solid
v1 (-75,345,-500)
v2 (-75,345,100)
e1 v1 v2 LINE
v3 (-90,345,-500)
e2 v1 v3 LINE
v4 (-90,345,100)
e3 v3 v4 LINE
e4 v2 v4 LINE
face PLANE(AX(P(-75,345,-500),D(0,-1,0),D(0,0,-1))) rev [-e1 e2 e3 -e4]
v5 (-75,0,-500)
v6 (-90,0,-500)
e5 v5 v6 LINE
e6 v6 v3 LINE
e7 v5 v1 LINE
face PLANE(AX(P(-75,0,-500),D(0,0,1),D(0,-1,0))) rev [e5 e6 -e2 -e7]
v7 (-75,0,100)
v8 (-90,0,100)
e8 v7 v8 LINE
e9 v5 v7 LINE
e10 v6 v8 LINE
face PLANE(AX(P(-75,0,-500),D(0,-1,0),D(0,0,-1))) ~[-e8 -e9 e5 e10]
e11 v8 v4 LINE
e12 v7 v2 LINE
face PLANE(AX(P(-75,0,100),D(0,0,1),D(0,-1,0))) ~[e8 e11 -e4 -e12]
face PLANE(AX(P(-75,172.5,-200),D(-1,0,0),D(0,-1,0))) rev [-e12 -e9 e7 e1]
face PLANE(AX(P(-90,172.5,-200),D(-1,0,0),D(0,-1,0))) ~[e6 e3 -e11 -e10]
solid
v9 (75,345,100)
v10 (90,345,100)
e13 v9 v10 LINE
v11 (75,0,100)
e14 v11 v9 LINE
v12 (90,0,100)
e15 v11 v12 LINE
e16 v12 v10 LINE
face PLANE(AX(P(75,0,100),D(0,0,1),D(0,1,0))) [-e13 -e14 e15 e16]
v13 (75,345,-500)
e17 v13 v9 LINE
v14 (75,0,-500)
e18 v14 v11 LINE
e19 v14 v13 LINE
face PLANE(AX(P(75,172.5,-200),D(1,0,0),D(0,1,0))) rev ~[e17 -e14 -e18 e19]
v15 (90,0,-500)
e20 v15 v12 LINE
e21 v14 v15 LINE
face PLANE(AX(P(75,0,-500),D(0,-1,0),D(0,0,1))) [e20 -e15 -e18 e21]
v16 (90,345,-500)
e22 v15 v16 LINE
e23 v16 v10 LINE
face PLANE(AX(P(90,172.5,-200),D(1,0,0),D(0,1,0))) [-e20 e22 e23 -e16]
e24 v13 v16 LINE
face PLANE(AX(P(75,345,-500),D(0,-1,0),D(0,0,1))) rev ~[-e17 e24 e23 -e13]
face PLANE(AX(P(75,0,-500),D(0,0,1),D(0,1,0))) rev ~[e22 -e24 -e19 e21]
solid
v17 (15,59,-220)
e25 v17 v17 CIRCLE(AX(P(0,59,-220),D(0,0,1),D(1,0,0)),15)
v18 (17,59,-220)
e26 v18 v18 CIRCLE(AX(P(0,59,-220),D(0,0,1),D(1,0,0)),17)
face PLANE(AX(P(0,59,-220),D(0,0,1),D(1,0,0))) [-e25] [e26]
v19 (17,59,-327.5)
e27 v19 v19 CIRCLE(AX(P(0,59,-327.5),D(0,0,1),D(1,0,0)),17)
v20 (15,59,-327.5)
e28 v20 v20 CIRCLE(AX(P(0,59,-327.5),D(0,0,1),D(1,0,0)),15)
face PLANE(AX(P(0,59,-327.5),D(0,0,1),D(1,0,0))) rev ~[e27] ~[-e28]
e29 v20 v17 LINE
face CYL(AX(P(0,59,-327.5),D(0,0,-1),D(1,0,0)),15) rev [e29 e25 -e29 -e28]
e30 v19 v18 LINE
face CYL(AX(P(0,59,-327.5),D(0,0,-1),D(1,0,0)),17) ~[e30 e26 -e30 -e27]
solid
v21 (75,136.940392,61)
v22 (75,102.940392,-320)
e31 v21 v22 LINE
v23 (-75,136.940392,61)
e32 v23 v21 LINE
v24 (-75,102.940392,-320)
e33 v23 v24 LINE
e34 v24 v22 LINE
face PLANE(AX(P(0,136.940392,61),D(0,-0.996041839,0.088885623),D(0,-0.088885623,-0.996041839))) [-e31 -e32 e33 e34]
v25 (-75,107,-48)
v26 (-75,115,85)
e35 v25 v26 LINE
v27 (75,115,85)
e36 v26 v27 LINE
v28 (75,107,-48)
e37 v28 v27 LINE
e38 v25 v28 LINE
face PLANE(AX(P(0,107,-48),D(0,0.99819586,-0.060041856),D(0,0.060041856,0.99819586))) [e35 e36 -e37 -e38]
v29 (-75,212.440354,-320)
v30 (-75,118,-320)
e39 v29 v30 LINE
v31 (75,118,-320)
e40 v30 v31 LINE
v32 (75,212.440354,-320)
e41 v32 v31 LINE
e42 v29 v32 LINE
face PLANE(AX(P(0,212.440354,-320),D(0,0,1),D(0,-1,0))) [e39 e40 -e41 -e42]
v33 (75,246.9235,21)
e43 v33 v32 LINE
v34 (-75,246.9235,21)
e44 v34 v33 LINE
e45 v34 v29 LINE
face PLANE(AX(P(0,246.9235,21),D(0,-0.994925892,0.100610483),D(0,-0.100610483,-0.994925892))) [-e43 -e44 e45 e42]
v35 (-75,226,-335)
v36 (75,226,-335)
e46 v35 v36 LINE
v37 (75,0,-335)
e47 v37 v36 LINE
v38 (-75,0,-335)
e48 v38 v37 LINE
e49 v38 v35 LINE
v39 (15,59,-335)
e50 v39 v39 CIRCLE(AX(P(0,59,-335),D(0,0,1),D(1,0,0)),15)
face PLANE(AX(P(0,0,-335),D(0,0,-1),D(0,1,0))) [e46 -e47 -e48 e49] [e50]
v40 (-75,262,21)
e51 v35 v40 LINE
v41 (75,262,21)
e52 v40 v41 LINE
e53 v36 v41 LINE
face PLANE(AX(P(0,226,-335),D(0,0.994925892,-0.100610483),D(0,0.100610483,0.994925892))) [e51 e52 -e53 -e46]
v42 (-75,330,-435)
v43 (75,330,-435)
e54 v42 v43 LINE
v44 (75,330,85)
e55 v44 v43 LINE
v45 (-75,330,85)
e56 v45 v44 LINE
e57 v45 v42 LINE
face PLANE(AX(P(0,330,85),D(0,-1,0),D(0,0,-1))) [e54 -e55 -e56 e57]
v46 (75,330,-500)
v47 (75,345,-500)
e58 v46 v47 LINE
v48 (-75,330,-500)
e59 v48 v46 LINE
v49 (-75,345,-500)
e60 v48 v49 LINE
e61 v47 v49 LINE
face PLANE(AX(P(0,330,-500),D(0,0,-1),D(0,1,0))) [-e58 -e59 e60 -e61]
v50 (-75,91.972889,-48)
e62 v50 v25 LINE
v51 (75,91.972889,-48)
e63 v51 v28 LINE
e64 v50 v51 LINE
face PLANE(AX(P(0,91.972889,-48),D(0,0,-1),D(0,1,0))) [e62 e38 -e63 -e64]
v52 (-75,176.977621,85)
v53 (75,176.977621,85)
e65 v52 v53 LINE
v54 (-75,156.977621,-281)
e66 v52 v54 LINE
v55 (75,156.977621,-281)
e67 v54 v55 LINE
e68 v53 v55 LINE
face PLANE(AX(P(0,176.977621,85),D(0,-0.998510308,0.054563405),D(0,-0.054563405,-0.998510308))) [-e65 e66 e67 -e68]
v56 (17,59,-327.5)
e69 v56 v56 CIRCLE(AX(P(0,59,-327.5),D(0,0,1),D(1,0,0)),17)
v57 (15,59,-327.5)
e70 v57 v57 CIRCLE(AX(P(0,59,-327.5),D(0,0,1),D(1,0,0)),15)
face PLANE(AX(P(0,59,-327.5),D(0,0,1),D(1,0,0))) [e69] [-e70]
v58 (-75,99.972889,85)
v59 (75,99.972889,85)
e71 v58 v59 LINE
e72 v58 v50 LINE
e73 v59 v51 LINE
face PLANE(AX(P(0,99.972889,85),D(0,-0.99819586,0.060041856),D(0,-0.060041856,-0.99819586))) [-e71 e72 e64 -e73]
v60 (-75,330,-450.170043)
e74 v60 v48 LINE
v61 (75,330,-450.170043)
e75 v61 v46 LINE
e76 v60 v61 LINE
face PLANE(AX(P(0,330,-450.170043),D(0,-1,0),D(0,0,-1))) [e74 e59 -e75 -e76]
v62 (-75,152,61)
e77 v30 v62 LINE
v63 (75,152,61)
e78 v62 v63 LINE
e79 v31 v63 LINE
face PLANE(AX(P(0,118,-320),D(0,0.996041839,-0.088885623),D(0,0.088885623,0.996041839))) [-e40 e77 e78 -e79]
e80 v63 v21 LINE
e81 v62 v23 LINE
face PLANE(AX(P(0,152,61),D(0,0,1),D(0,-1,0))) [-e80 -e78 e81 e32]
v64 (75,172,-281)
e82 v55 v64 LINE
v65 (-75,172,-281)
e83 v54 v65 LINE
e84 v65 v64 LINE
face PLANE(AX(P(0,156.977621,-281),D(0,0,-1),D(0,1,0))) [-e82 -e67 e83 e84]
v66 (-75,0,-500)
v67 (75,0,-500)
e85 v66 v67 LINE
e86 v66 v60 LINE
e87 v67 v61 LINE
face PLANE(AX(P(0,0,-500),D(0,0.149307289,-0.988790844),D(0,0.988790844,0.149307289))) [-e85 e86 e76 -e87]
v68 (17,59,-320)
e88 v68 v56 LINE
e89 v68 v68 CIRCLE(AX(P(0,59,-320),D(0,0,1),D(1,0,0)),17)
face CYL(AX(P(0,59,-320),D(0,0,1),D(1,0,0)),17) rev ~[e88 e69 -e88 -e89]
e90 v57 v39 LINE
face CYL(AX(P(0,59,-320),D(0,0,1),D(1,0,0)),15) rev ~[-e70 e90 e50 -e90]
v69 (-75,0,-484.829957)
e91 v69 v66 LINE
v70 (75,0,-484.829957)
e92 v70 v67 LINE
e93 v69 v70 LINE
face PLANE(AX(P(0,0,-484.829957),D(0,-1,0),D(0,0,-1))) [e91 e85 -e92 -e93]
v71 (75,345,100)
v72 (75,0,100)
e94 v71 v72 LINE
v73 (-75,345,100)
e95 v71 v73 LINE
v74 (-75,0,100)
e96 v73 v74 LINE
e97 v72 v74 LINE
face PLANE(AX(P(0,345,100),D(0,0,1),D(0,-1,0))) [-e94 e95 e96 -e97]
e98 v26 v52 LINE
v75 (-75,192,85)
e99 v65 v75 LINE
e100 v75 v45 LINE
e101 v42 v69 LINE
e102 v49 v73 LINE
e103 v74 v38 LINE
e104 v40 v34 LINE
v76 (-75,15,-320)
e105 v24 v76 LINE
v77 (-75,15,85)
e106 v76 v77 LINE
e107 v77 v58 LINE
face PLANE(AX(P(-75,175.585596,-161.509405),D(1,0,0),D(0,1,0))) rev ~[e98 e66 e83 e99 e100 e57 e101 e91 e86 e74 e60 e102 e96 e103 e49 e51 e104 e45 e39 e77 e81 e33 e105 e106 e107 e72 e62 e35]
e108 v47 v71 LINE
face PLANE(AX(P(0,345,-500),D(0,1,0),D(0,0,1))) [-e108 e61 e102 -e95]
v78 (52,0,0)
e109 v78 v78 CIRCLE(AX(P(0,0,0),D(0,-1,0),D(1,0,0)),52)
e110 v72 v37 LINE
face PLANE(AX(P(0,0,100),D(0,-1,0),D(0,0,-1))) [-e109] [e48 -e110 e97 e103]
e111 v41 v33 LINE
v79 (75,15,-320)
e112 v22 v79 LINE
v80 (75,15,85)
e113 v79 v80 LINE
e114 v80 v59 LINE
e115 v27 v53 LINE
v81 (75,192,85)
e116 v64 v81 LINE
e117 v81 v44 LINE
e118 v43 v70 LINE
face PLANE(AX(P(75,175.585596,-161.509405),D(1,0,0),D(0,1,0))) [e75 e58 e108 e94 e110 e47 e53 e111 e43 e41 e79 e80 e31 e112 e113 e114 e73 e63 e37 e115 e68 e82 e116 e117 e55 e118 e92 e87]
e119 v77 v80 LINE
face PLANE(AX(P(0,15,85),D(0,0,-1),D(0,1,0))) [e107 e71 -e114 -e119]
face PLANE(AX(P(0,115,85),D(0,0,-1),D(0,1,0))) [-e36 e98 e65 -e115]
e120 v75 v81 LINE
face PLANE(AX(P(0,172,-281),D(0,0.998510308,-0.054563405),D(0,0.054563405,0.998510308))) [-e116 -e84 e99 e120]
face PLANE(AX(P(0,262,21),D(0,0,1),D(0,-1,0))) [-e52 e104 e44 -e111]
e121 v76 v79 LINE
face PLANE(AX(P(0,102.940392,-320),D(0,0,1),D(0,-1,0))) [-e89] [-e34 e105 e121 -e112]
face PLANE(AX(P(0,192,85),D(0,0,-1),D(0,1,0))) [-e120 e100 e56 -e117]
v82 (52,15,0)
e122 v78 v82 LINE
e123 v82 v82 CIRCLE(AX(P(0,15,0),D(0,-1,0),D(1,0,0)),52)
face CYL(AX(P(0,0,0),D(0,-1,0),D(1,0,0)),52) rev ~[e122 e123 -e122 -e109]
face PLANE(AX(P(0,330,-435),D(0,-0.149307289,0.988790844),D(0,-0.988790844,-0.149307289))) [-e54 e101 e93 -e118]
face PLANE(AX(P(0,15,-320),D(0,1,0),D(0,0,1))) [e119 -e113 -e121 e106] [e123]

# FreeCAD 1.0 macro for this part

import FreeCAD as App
import Part
import Sketcher
from FreeCAD import Vector
Q = App.Units.Quantity

doc = App.newDocument("Part")
body = doc.addObject("PartDesign::Body", "Body")

sketch1 = body.newObject("Sketcher::SketchObject", "Sketch")
sketch1.AttachmentSupport = (doc.getObject("YZ_Plane"), [""])
sketch1.MapMode = "FlatFace"
sketch1.addGeometry(Part.LineSegment(Vector(0, 100, 0), Vector(0, -335, 0)), False)
sketch1.addGeometry(Part.LineSegment(Vector(0, -335, 0), Vector(226, -335, 0)), False)
sketch1.addGeometry(Part.LineSegment(Vector(226, -335, 0), Vector(262, 21, 0)), False)
sketch1.addGeometry(Part.LineSegment(Vector(262, 21, 0), Vector(247, 21, 0)), False)
sketch1.addGeometry(Part.LineSegment(Vector(247, 21, 0), Vector(212, -320, 0)), False)
sketch1.addGeometry(Part.LineSegment(Vector(212, -320, 0), Vector(118, -320, 0)), False)
sketch1.addGeometry(Part.LineSegment(Vector(118, -320, 0), Vector(152, 61, 0)), False)
sketch1.addGeometry(Part.LineSegment(Vector(152, 61, 0), Vector(137, 61, 0)), False)
sketch1.addGeometry(Part.LineSegment(Vector(137, 61, 0), Vector(103, -320, 0)), False)
sketch1.addGeometry(Part.LineSegment(Vector(103, -320, 0), Vector(15, -320, 0)), False)
sketch1.addGeometry(Part.LineSegment(Vector(15, -320, 0), Vector(15, 85, 0)), False)
sketch1.addGeometry(Part.LineSegment(Vector(15, 85, 0), Vector(100, 85, 0)), False)
sketch1.addGeometry(Part.LineSegment(Vector(100, 85, 0), Vector(92, -48, 0)), False)
sketch1.addGeometry(Part.LineSegment(Vector(92, -48, 0), Vector(107, -48, 0)), False)
sketch1.addGeometry(Part.LineSegment(Vector(107, -48, 0), Vector(115, 85, 0)), False)
sketch1.addGeometry(Part.LineSegment(Vector(115, 85, 0), Vector(177, 85, 0)), False)
sketch1.addGeometry(Part.LineSegment(Vector(177, 85, 0), Vector(157, -281, 0)), False)
sketch1.addGeometry(Part.LineSegment(Vector(157, -281, 0), Vector(172, -281, 0)), False)
sketch1.addGeometry(Part.LineSegment(Vector(172, -281, 0), Vector(192, 85, 0)), False)
sketch1.addGeometry(Part.LineSegment(Vector(192, 85, 0), Vector(330, 85, 0)), False)
sketch1.addGeometry(Part.LineSegment(Vector(330, 85, 0), Vector(330, -435, 0)), False)
sketch1.addGeometry(Part.LineSegment(Vector(330, -435, 0), Vector(0, -485, 0)), False)
sketch1.addGeometry(Part.LineSegment(Vector(0, -485, 0), Vector(0, -500, 0)), False)
sketch1.addGeometry(Part.LineSegment(Vector(0, -500, 0), Vector(330, -450, 0)), False)
sketch1.addGeometry(Part.LineSegment(Vector(330, -450, 0), Vector(330, -500, 0)), False)
sketch1.addGeometry(Part.LineSegment(Vector(330, -500, 0), Vector(345, -500, 0)), False)
sketch1.addGeometry(Part.LineSegment(Vector(345, -500, 0), Vector(345, 100, 0)), False)
sketch1.addGeometry(Part.LineSegment(Vector(345, 100, 0), Vector(0, 100, 0)), False)
sketch1.addConstraint(Sketcher.Constraint("Coincident", 0, 2, 1, 1))
sketch1.addConstraint(Sketcher.Constraint("Coincident", 1, 2, 2, 1))
sketch1.addConstraint(Sketcher.Constraint("Coincident", 2, 2, 3, 1))
sketch1.addConstraint(Sketcher.Constraint("Coincident", 3, 2, 4, 1))
sketch1.addConstraint(Sketcher.Constraint("Coincident", 4, 2, 5, 1))
sketch1.addConstraint(Sketcher.Constraint("Coincident", 5, 2, 6, 1))
sketch1.addConstraint(Sketcher.Constraint("Coincident", 6, 2, 7, 1))
sketch1.addConstraint(Sketcher.Constraint("Coincident", 7, 2, 8, 1))
sketch1.addConstraint(Sketcher.Constraint("Coincident", 8, 2, 9, 1))
sketch1.addConstraint(Sketcher.Constraint("Coincident", 9, 2, 10, 1))
sketch1.addConstraint(Sketcher.Constraint("Coincident", 10, 2, 11, 1))
sketch1.addConstraint(Sketcher.Constraint("Coincident", 11, 2, 12, 1))
sketch1.addConstraint(Sketcher.Constraint("Coincident", 12, 2, 13, 1))
sketch1.addConstraint(Sketcher.Constraint("Coincident", 13, 2, 14, 1))
sketch1.addConstraint(Sketcher.Constraint("Coincident", 14, 2, 15, 1))
sketch1.addConstraint(Sketcher.Constraint("Coincident", 15, 2, 16, 1))
sketch1.addConstraint(Sketcher.Constraint("Coincident", 16, 2, 17, 1))
sketch1.addConstraint(Sketcher.Constraint("Coincident", 17, 2, 18, 1))
sketch1.addConstraint(Sketcher.Constraint("Coincident", 18, 2, 19, 1))
sketch1.addConstraint(Sketcher.Constraint("Coincident", 19, 2, 20, 1))
sketch1.addConstraint(Sketcher.Constraint("Coincident", 20, 2, 21, 1))
sketch1.addConstraint(Sketcher.Constraint("Coincident", 21, 2, 22, 1))
sketch1.addConstraint(Sketcher.Constraint("Coincident", 22, 2, 23, 1))
sketch1.addConstraint(Sketcher.Constraint("Coincident", 23, 2, 24, 1))
sketch1.addConstraint(Sketcher.Constraint("Coincident", 24, 2, 25, 1))
sketch1.addConstraint(Sketcher.Constraint("Coincident", 25, 2, 26, 1))
sketch1.addConstraint(Sketcher.Constraint("Coincident", 26, 2, 27, 1))
sketch1.addConstraint(Sketcher.Constraint("Coincident", 27, 2, 0, 1))
sketch1.addConstraint(Sketcher.Constraint("Vertical", 0))
sketch1.addConstraint(Sketcher.Constraint("Horizontal", 1))
sketch1.addConstraint(Sketcher.Constraint("Horizontal", 3))
sketch1.addConstraint(Sketcher.Constraint("Horizontal", 5))
sketch1.addConstraint(Sketcher.Constraint("Horizontal", 7))
sketch1.addConstraint(Sketcher.Constraint("Horizontal", 9))
sketch1.addConstraint(Sketcher.Constraint("Vertical", 10))
sketch1.addConstraint(Sketcher.Constraint("Horizontal", 11))
sketch1.addConstraint(Sketcher.Constraint("Horizontal", 13))
sketch1.addConstraint(Sketcher.Constraint("Horizontal", 15))
sketch1.addConstraint(Sketcher.Constraint("Horizontal", 17))
sketch1.addConstraint(Sketcher.Constraint("Horizontal", 19))
sketch1.addConstraint(Sketcher.Constraint("Vertical", 20))
sketch1.addConstraint(Sketcher.Constraint("Vertical", 22))
sketch1.addConstraint(Sketcher.Constraint("Vertical", 24))
sketch1.addConstraint(Sketcher.Constraint("Horizontal", 25))
sketch1.addConstraint(Sketcher.Constraint("Vertical", 26))
sketch1.addConstraint(Sketcher.Constraint("Horizontal", 27))
sketch1.addConstraint(Sketcher.Constraint("PointOnObject", 0, 2, -2))
sketch1.addConstraint(Sketcher.Constraint("PointOnObject", 21, 2, -2))
sketch1.addConstraint(Sketcher.Constraint("Parallel", 2, 4))
sketch1.addConstraint(Sketcher.Constraint("Parallel", 6, 8))
sketch1.addConstraint(Sketcher.Constraint("Parallel", 12, 14))
sketch1.addConstraint(Sketcher.Constraint("Parallel", 16, 18))
sketch1.addConstraint(Sketcher.Constraint("Parallel", 21, 23))
sketch1.addConstraint(Sketcher.Constraint("Horizontal", 5, 2, 8, 2))
sketch1.addConstraint(Sketcher.Constraint("Horizontal", 11, 2, 14, 2))
sketch1.addConstraint(Sketcher.Constraint("Horizontal", 15, 2, 18, 2))
sketch1.addConstraint(Sketcher.Constraint("Horizontal", 22, 2, 24, 2))
sketch1.addConstraint(Sketcher.Constraint("Vertical", 20, 2, 23, 2))
sketch1.addConstraint(Sketcher.Constraint("DistanceX", 1, 1, 1, 2, Q("226 mm")))
sketch1.addConstraint(Sketcher.Constraint("DistanceX", 19, 1, 19, 2, Q("138 mm")))
sketch1.addConstraint(Sketcher.Constraint("DistanceX", 25, 1, 25, 2, Q("15 mm")))
sketch1.addConstraint(Sketcher.Constraint("DistanceX", 27, 2, 27, 1, Q("345 mm")))
sketch1.addConstraint(Sketcher.Constraint("DistanceY", 0, 2, 0, 1, Q("435 mm")))
sketch1.addConstraint(Sketcher.Constraint("DistanceY", 10, 1, 10, 2, Q("405 mm")))
sketch1.addConstraint(Sketcher.Constraint("DistanceY", 20, 2, 20, 1, Q("520 mm")))
sketch1.addConstraint(Sketcher.Constraint("DistanceY", 26, 1, 26, 2, Q("600 mm")))
sketch1.addConstraint(Sketcher.Constraint("DistanceY", 0, 2, -1, 1, Q("335 mm")))
sketch1.addConstraint(Sketcher.Constraint("DistanceX", -1, 1, 2, 2, Q("262 mm")))
sketch1.addConstraint(Sketcher.Constraint("DistanceY", -1, 1, 2, 2, Q("21 mm")))
sketch1.addConstraint(Sketcher.Constraint("DistanceY", 4, 2, -1, 1, Q("320 mm")))
sketch1.addConstraint(Sketcher.Constraint("DistanceX", -1, 1, 5, 2, Q("118 mm")))
sketch1.addConstraint(Sketcher.Constraint("DistanceX", -1, 1, 6, 2, Q("152 mm")))
sketch1.addConstraint(Sketcher.Constraint("DistanceY", -1, 1, 6, 2, Q("61 mm")))
sketch1.addConstraint(Sketcher.Constraint("DistanceX", -1, 1, 9, 2, Q("15 mm")))
sketch1.addConstraint(Sketcher.Constraint("DistanceY", 12, 2, -1, 1, Q("48 mm")))
sketch1.addConstraint(Sketcher.Constraint("DistanceX", -1, 1, 13, 2, Q("107 mm")))
sketch1.addConstraint(Sketcher.Constraint("DistanceX", -1, 1, 14, 2, Q("115 mm")))
sketch1.addConstraint(Sketcher.Constraint("DistanceY", 16, 2, -1, 1, Q("281 mm")))
sketch1.addConstraint(Sketcher.Constraint("DistanceX", -1, 1, 17, 2, Q("172 mm")))
sketch1.addConstraint(Sketcher.Constraint("DistanceX", 3, 2, 3, 1, Q("15.0765 mm")))
sketch1.addConstraint(Sketcher.Constraint("DistanceX", 11, 1, 11, 2, Q("84.972889 mm")))
sketch1.addConstraint(Sketcher.Constraint("DistanceX", 15, 1, 15, 2, Q("61.977621 mm")))
sketch1.addConstraint(Sketcher.Constraint("DistanceX", 7, 2, 7, 1, Q("15.059608 mm")))
sketch1.addConstraint(Sketcher.Constraint("DistanceY", 22, 2, 22, 1, Q("15.170043 mm")))
pad1 = body.newObject("PartDesign::Pad", "Pad")
pad1.Profile = sketch1
pad1.Length = 150
pad1.Midplane = True

sketch2 = body.newObject("Sketcher::SketchObject", "Sketch001")
sketch2.AttachmentSupport = (doc.getObject("XZ_Plane"), [""])
sketch2.MapMode = "FlatFace"
sketch2.addGeometry(Part.Circle(Vector(0, 0, 0), Vector(0, 0, 1), 52), False)
sketch2.addConstraint(Sketcher.Constraint("Coincident", 0, 3, -1, 1))
sketch2.addConstraint(Sketcher.Constraint("Diameter", 0, Q("104 mm")))
pocket1 = body.newObject("PartDesign::Pocket", "Pocket")
pocket1.Profile = sketch2
pocket1.Length = 15

sketch3 = body.newObject("Sketcher::SketchObject", "Sketch002")
sketch3.AttachmentSupport = (doc.getObject("XY_Plane"), [""])
sketch3.MapMode = "FlatFace"
sketch3.AttachmentOffset = App.Placement(Vector(0, 0, -320), App.Rotation())
sketch3.addGeometry(Part.Circle(Vector(0, 59, 0), Vector(0, 0, 1), 15), False)
sketch3.addConstraint(Sketcher.Constraint("PointOnObject", 0, 3, -2))
sketch3.addConstraint(Sketcher.Constraint("Diameter", 0, Q("30 mm")))
sketch3.addConstraint(Sketcher.Constraint("DistanceY", -1, 1, 0, 3, Q("59 mm")))
pocket2 = body.newObject("PartDesign::Pocket", "Pocket001")
pocket2.Profile = sketch3
pocket2.Length = 15

sketch4 = body.newObject("Sketcher::SketchObject", "Sketch003")
sketch4.AttachmentSupport = (doc.getObject("XY_Plane"), [""])
sketch4.MapMode = "FlatFace"
sketch4.AttachmentOffset = App.Placement(Vector(0, 0, -320), App.Rotation())
sketch4.addGeometry(Part.Circle(Vector(0, 59, 0), Vector(0, 0, 1), 17), False)
sketch4.addGeometry(Part.Circle(Vector(0, 59, 0), Vector(0, 0, 1), 15), False)
sketch4.addConstraint(Sketcher.Constraint("Coincident", 1, 3, 0, 3))
sketch4.addConstraint(Sketcher.Constraint("PointOnObject", 0, 3, -2))
sketch4.addConstraint(Sketcher.Constraint("Diameter", 0, Q("34 mm")))
sketch4.addConstraint(Sketcher.Constraint("Diameter", 1, Q("30 mm")))
sketch4.addConstraint(Sketcher.Constraint("DistanceY", -1, 1, 0, 3, Q("59 mm")))
pocket3 = body.newObject("PartDesign::Pocket", "Pocket002")
pocket3.Profile = sketch4
pocket3.Length = 7.5
body2 = doc.addObject("PartDesign::Body", "Body001")

sketch5 = body2.newObject("Sketcher::SketchObject", "Sketch004")
sketch5.AttachmentSupport = (doc.getObject("YZ_Plane001"), [""])
sketch5.MapMode = "FlatFace"
sketch5.AttachmentOffset = App.Placement(Vector(0, 0, 75), App.Rotation())
sketch5.addGeometry(Part.LineSegment(Vector(0, 100, 0), Vector(0, -500, 0)), False)
sketch5.addGeometry(Part.LineSegment(Vector(0, -500, 0), Vector(345, -500, 0)), False)
sketch5.addGeometry(Part.LineSegment(Vector(345, -500, 0), Vector(345, 100, 0)), False)
sketch5.addGeometry(Part.LineSegment(Vector(345, 100, 0), Vector(0, 100, 0)), False)
sketch5.addConstraint(Sketcher.Constraint("Coincident", 0, 2, 1, 1))
sketch5.addConstraint(Sketcher.Constraint("Coincident", 1, 2, 2, 1))
sketch5.addConstraint(Sketcher.Constraint("Coincident", 2, 2, 3, 1))
sketch5.addConstraint(Sketcher.Constraint("Coincident", 3, 2, 0, 1))
sketch5.addConstraint(Sketcher.Constraint("Vertical", 0))
sketch5.addConstraint(Sketcher.Constraint("Horizontal", 1))
sketch5.addConstraint(Sketcher.Constraint("Vertical", 2))
sketch5.addConstraint(Sketcher.Constraint("Horizontal", 3))
sketch5.addConstraint(Sketcher.Constraint("PointOnObject", 0, 2, -2))
sketch5.addConstraint(Sketcher.Constraint("DistanceX", 1, 1, 1, 2, Q("345 mm")))
sketch5.addConstraint(Sketcher.Constraint("DistanceY", 0, 2, 0, 1, Q("600 mm")))
sketch5.addConstraint(Sketcher.Constraint("DistanceY", 0, 2, -1, 1, Q("500 mm")))
pad2 = body2.newObject("PartDesign::Pad", "Pad001")
pad2.Profile = sketch5
pad2.Length = 15
body3 = doc.addObject("PartDesign::Body", "Body002")
doc.recompute()

mirroring = doc.addObject("Part::Mirroring", "Mirroring")
mirroring.Source = body2
mirroring.Base = Vector(0, 0, 0)
mirroring.Normal = Vector(1, 0, 0)
body3.BaseFeature = mirroring
doc.recompute()
body4 = doc.addObject("PartDesign::Body", "Body003")

sketch6 = body4.newObject("Sketcher::SketchObject", "Sketch005")
sketch6.AttachmentSupport = (doc.getObject("XY_Plane003"), [""])
sketch6.MapMode = "FlatFace"
sketch6.AttachmentOffset = App.Placement(Vector(0, 0, -327.5), App.Rotation())
sketch6.addGeometry(Part.Circle(Vector(0, 59, 0), Vector(0, 0, 1), 17), False)
sketch6.addGeometry(Part.Circle(Vector(0, 59, 0), Vector(0, 0, 1), 15), False)
sketch6.addConstraint(Sketcher.Constraint("Coincident", 1, 3, 0, 3))
sketch6.addConstraint(Sketcher.Constraint("PointOnObject", 0, 3, -2))
sketch6.addConstraint(Sketcher.Constraint("Diameter", 0, Q("34 mm")))
sketch6.addConstraint(Sketcher.Constraint("Diameter", 1, Q("30 mm")))
sketch6.addConstraint(Sketcher.Constraint("DistanceY", -1, 1, 0, 3, Q("59 mm")))
pad3 = body4.newObject("PartDesign::Pad", "Pad002")
pad3.Profile = sketch6
pad3.Length = 107.5
mirroring.Visibility = False

doc.recompute()
